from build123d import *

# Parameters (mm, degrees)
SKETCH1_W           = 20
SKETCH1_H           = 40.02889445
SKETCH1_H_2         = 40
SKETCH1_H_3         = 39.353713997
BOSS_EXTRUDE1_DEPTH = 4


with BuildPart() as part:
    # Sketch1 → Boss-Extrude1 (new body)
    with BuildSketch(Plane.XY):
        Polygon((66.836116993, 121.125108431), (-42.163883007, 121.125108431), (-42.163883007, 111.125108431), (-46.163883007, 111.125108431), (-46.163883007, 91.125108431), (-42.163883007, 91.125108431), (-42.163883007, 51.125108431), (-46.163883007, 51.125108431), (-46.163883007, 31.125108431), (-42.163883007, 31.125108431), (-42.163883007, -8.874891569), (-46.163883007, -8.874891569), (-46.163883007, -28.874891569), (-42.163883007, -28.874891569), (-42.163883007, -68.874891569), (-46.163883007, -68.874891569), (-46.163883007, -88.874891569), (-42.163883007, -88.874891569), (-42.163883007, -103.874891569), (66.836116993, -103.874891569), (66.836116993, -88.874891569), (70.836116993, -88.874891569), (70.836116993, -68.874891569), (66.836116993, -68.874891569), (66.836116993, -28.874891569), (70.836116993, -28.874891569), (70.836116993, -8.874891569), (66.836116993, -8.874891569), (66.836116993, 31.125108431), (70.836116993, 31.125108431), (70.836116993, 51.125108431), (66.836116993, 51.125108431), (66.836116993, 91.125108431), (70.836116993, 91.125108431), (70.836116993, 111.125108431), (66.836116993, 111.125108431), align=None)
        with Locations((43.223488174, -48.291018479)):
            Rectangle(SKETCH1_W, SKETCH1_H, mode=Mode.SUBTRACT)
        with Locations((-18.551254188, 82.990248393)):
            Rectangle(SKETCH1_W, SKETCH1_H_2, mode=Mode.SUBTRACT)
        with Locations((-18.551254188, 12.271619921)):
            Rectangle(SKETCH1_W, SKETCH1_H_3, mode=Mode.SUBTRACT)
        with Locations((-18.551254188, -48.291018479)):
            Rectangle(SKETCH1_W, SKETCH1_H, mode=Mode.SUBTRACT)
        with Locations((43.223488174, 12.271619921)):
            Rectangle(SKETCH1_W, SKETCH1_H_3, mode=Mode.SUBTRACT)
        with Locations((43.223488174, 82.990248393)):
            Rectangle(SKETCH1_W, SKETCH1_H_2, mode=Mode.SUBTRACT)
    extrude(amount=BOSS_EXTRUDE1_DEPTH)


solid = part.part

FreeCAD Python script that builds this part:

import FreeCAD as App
import Part
import Sketcher
from FreeCAD import Vector

doc = App.newDocument("Part")
params = doc.addObject("Spreadsheet::Sheet", "Params")
for row, (alias, value) in enumerate([
    ("sketch1_width", "109 mm"),
    ("sketch1_width2", "4 mm"),
    ("sketch1_width3", "20 mm"),
    ("sketch1_height", "10 mm"),
    ("sketch1_height2", "40 mm"),
    ("pad1_length", "4 mm"),
], start=1):
    params.set(f"A{row}", alias)
    params.set(f"B{row}", "=" + value)
    params.setAlias(f"B{row}", alias)

body = doc.addObject("PartDesign::Body", "Body")

sketch1 = body.newObject("Sketcher::SketchObject", "Sketch")
sketch1.AttachmentSupport = (doc.getObject("XY_Plane"), [""])
sketch1.MapMode = "FlatFace"
sketch1.addGeometry(Part.LineSegment(Vector(66.8, 121.1, 0), Vector(-42.2, 121.1, 0)), False)
sketch1.addGeometry(Part.LineSegment(Vector(-42.2, 121.1, 0), Vector(-42.2, 111.1, 0)), False)
sketch1.addGeometry(Part.LineSegment(Vector(-42.2, 111.1, 0), Vector(-46.2, 111.1, 0)), False)
sketch1.addGeometry(Part.LineSegment(Vector(-46.2, 111.1, 0), Vector(-46.2, 91.1, 0)), False)
sketch1.addGeometry(Part.LineSegment(Vector(-46.2, 91.1, 0), Vector(-42.2, 91.1, 0)), False)
sketch1.addGeometry(Part.LineSegment(Vector(-42.2, 91.1, 0), Vector(-42.2, 51.1, 0)), False)
sketch1.addGeometry(Part.LineSegment(Vector(-42.2, 51.1, 0), Vector(-46.2, 51.1, 0)), False)
sketch1.addGeometry(Part.LineSegment(Vector(-46.2, 51.1, 0), Vector(-46.2, 31.1, 0)), False)
sketch1.addGeometry(Part.LineSegment(Vector(-46.2, 31.1, 0), Vector(-42.2, 31.1, 0)), False)
sketch1.addGeometry(Part.LineSegment(Vector(-42.2, 31.1, 0), Vector(-42.2, -8.9, 0)), False)
sketch1.addGeometry(Part.LineSegment(Vector(-42.2, -8.9, 0), Vector(-46.2, -8.9, 0)), False)
sketch1.addGeometry(Part.LineSegment(Vector(-46.2, -8.9, 0), Vector(-46.2, -28.9, 0)), False)
sketch1.addGeometry(Part.LineSegment(Vector(-46.2, -28.9, 0), Vector(-42.2, -28.9, 0)), False)
sketch1.addGeometry(Part.LineSegment(Vector(-42.2, -28.9, 0), Vector(-42.2, -68.9, 0)), False)
sketch1.addGeometry(Part.LineSegment(Vector(-42.2, -68.9, 0), Vector(-46.2, -68.9, 0)), False)
sketch1.addGeometry(Part.LineSegment(Vector(-46.2, -68.9, 0), Vector(-46.2, -88.9, 0)), False)
sketch1.addGeometry(Part.LineSegment(Vector(-46.2, -88.9, 0), Vector(-42.2, -88.9, 0)), False)
sketch1.addGeometry(Part.LineSegment(Vector(-42.2, -88.9, 0), Vector(-42.2, -103.9, 0)), False)
sketch1.addGeometry(Part.LineSegment(Vector(-42.2, -103.9, 0), Vector(66.8, -103.9, 0)), False)
sketch1.addGeometry(Part.LineSegment(Vector(66.8, -103.9, 0), Vector(66.8, -88.9, 0)), False)
sketch1.addGeometry(Part.LineSegment(Vector(66.8, -88.9, 0), Vector(70.8, -88.9, 0)), False)
sketch1.addGeometry(Part.LineSegment(Vector(70.8, -88.9, 0), Vector(70.8, -68.9, 0)), False)
sketch1.addGeometry(Part.LineSegment(Vector(70.8, -68.9, 0), Vector(66.8, -68.9, 0)), False)
sketch1.addGeometry(Part.LineSegment(Vector(66.8, -68.9, 0), Vector(66.8, -28.9, 0)), False)
sketch1.addGeometry(Part.LineSegment(Vector(66.8, -28.9, 0), Vector(70.8, -28.9, 0)), False)
sketch1.addGeometry(Part.LineSegment(Vector(70.8, -28.9, 0), Vector(70.8, -8.9, 0)), False)
sketch1.addGeometry(Part.LineSegment(Vector(70.8, -8.9, 0), Vector(66.8, -8.9, 0)), False)
sketch1.addGeometry(Part.LineSegment(Vector(66.8, -8.9, 0), Vector(66.8, 31.1, 0)), False)
sketch1.addGeometry(Part.LineSegment(Vector(66.8, 31.1, 0), Vector(70.8, 31.1, 0)), False)
sketch1.addGeometry(Part.LineSegment(Vector(70.8, 31.1, 0), Vector(70.8, 51.1, 0)), False)
sketch1.addGeometry(Part.LineSegment(Vector(70.8, 51.1, 0), Vector(66.8, 51.1, 0)), False)
sketch1.addGeometry(Part.LineSegment(Vector(66.8, 51.1, 0), Vector(66.8, 91.1, 0)), False)
sketch1.addGeometry(Part.LineSegment(Vector(66.8, 91.1, 0), Vector(70.8, 91.1, 0)), False)
sketch1.addGeometry(Part.LineSegment(Vector(70.8, 91.1, 0), Vector(70.8, 111.1, 0)), False)
sketch1.addGeometry(Part.LineSegment(Vector(70.8, 111.1, 0), Vector(66.8, 111.1, 0)), False)
sketch1.addGeometry(Part.LineSegment(Vector(66.8, 111.1, 0), Vector(66.8, 121.1, 0)), False)
sketch1.addGeometry(Part.LineSegment(Vector(-8.6, -68.3, 0), Vector(-28.6, -68.3, 0)), False)
sketch1.addGeometry(Part.LineSegment(Vector(-28.6, -68.3, 0), Vector(-28.6, -28.3, 0)), False)
sketch1.addGeometry(Part.LineSegment(Vector(-28.6, -28.3, 0), Vector(-8.6, -28.3, 0)), False)
sketch1.addGeometry(Part.LineSegment(Vector(-8.6, -28.3, 0), Vector(-8.6, -68.3, 0)), False)
sketch1.addGeometry(Part.LineSegment(Vector(-8.6, -7.4, 0), Vector(-28.6, -7.4, 0)), False)
sketch1.addGeometry(Part.LineSegment(Vector(-28.6, -7.4, 0), Vector(-28.6, 31.9, 0)), False)
sketch1.addGeometry(Part.LineSegment(Vector(-28.6, 31.9, 0), Vector(-8.6, 31.9, 0)), False)
sketch1.addGeometry(Part.LineSegment(Vector(-8.6, 31.9, 0), Vector(-8.6, -7.4, 0)), False)
sketch1.addGeometry(Part.LineSegment(Vector(53.2, -68.3, 0), Vector(33.2, -68.3, 0)), False)
sketch1.addGeometry(Part.LineSegment(Vector(33.2, -68.3, 0), Vector(33.2, -28.3, 0)), False)
sketch1.addGeometry(Part.LineSegment(Vector(33.2, -28.3, 0), Vector(53.2, -28.3, 0)), False)
sketch1.addGeometry(Part.LineSegment(Vector(53.2, -28.3, 0), Vector(53.2, -68.3, 0)), False)
sketch1.addGeometry(Part.LineSegment(Vector(53.2, -7.4, 0), Vector(33.2, -7.4, 0)), False)
sketch1.addGeometry(Part.LineSegment(Vector(33.2, -7.4, 0), Vector(33.2, 31.9, 0)), False)
sketch1.addGeometry(Part.LineSegment(Vector(33.2, 31.9, 0), Vector(53.2, 31.9, 0)), False)
sketch1.addGeometry(Part.LineSegment(Vector(53.2, 31.9, 0), Vector(53.2, -7.4, 0)), False)
sketch1.addGeometry(Part.LineSegment(Vector(-8.6, 63, 0), Vector(-28.6, 63, 0)), False)
sketch1.addGeometry(Part.LineSegment(Vector(-28.6, 63, 0), Vector(-28.6, 103, 0)), False)
sketch1.addGeometry(Part.LineSegment(Vector(-28.6, 103, 0), Vector(-8.6, 103, 0)), False)
sketch1.addGeometry(Part.LineSegment(Vector(-8.6, 103, 0), Vector(-8.6, 63, 0)), False)
sketch1.addGeometry(Part.LineSegment(Vector(53.2, 63, 0), Vector(33.2, 63, 0)), False)
sketch1.addGeometry(Part.LineSegment(Vector(33.2, 63, 0), Vector(33.2, 103, 0)), False)
sketch1.addGeometry(Part.LineSegment(Vector(33.2, 103, 0), Vector(53.2, 103, 0)), False)
sketch1.addGeometry(Part.LineSegment(Vector(53.2, 103, 0), Vector(53.2, 63, 0)), False)
sketch1.addConstraint(Sketcher.Constraint("Coincident", 0, 2, 1, 1))
sketch1.addConstraint(Sketcher.Constraint("Coincident", 1, 2, 2, 1))
sketch1.addConstraint(Sketcher.Constraint("Coincident", 2, 2, 3, 1))
sketch1.addConstraint(Sketcher.Constraint("Coincident", 3, 2, 4, 1))
sketch1.addConstraint(Sketcher.Constraint("Coincident", 4, 2, 5, 1))
sketch1.addConstraint(Sketcher.Constraint("Coincident", 5, 2, 6, 1))
sketch1.addConstraint(Sketcher.Constraint("Coincident", 6, 2, 7, 1))
sketch1.addConstraint(Sketcher.Constraint("Coincident", 7, 2, 8, 1))
sketch1.addConstraint(Sketcher.Constraint("Coincident", 8, 2, 9, 1))
sketch1.addConstraint(Sketcher.Constraint("Coincident", 9, 2, 10, 1))
sketch1.addConstraint(Sketcher.Constraint("Coincident", 10, 2, 11, 1))
sketch1.addConstraint(Sketcher.Constraint("Coincident", 11, 2, 12, 1))
sketch1.addConstraint(Sketcher.Constraint("Coincident", 12, 2, 13, 1))
sketch1.addConstraint(Sketcher.Constraint("Coincident", 13, 2, 14, 1))
sketch1.addConstraint(Sketcher.Constraint("Coincident", 14, 2, 15, 1))
sketch1.addConstraint(Sketcher.Constraint("Coincident", 15, 2, 16, 1))
sketch1.addConstraint(Sketcher.Constraint("Coincident", 16, 2, 17, 1))
sketch1.addConstraint(Sketcher.Constraint("Coincident", 17, 2, 18, 1))
sketch1.addConstraint(Sketcher.Constraint("Coincident", 18, 2, 19, 1))
sketch1.addConstraint(Sketcher.Constraint("Coincident", 19, 2, 20, 1))
sketch1.addConstraint(Sketcher.Constraint("Coincident", 20, 2, 21, 1))
sketch1.addConstraint(Sketcher.Constraint("Coincident", 21, 2, 22, 1))
sketch1.addConstraint(Sketcher.Constraint("Coincident", 22, 2, 23, 1))
sketch1.addConstraint(Sketcher.Constraint("Coincident", 23, 2, 24, 1))
sketch1.addConstraint(Sketcher.Constraint("Coincident", 24, 2, 25, 1))
sketch1.addConstraint(Sketcher.Constraint("Coincident", 25, 2, 26, 1))
sketch1.addConstraint(Sketcher.Constraint("Coincident", 26, 2, 27, 1))
sketch1.addConstraint(Sketcher.Constraint("Coincident", 27, 2, 28, 1))
sketch1.addConstraint(Sketcher.Constraint("Coincident", 28, 2, 29, 1))
sketch1.addConstraint(Sketcher.Constraint("Coincident", 29, 2, 30, 1))
sketch1.addConstraint(Sketcher.Constraint("Coincident", 30, 2, 31, 1))
sketch1.addConstraint(Sketcher.Constraint("Coincident", 31, 2, 32, 1))
sketch1.addConstraint(Sketcher.Constraint("Coincident", 32, 2, 33, 1))
sketch1.addConstraint(Sketcher.Constraint("Coincident", 33, 2, 34, 1))
sketch1.addConstraint(Sketcher.Constraint("Coincident", 34, 2, 35, 1))
sketch1.addConstraint(Sketcher.Constraint("Coincident", 35, 2, 0, 1))
sketch1.addConstraint(Sketcher.Constraint("Coincident", 36, 2, 37, 1))
sketch1.addConstraint(Sketcher.Constraint("Coincident", 37, 2, 38, 1))
sketch1.addConstraint(Sketcher.Constraint("Coincident", 38, 2, 39, 1))
sketch1.addConstraint(Sketcher.Constraint("Coincident", 39, 2, 36, 1))
sketch1.addConstraint(Sketcher.Constraint("Coincident", 40, 2, 41, 1))
sketch1.addConstraint(Sketcher.Constraint("Coincident", 41, 2, 42, 1))
sketch1.addConstraint(Sketcher.Constraint("Coincident", 42, 2, 43, 1))
sketch1.addConstraint(Sketcher.Constraint("Coincident", 43, 2, 40, 1))
sketch1.addConstraint(Sketcher.Constraint("Coincident", 44, 2, 45, 1))
sketch1.addConstraint(Sketcher.Constraint("Coincident", 45, 2, 46, 1))
sketch1.addConstraint(Sketcher.Constraint("Coincident", 46, 2, 47, 1))
sketch1.addConstraint(Sketcher.Constraint("Coincident", 47, 2, 44, 1))
sketch1.addConstraint(Sketcher.Constraint("Coincident", 48, 2, 49, 1))
sketch1.addConstraint(Sketcher.Constraint("Coincident", 49, 2, 50, 1))
sketch1.addConstraint(Sketcher.Constraint("Coincident", 50, 2, 51, 1))
sketch1.addConstraint(Sketcher.Constraint("Coincident", 51, 2, 48, 1))
sketch1.addConstraint(Sketcher.Constraint("Coincident", 52, 2, 53, 1))
sketch1.addConstraint(Sketcher.Constraint("Coincident", 53, 2, 54, 1))
sketch1.addConstraint(Sketcher.Constraint("Coincident", 54, 2, 55, 1))
sketch1.addConstraint(Sketcher.Constraint("Coincident", 55, 2, 52, 1))
sketch1.addConstraint(Sketcher.Constraint("Coincident", 56, 2, 57, 1))
sketch1.addConstraint(Sketcher.Constraint("Coincident", 57, 2, 58, 1))
sketch1.addConstraint(Sketcher.Constraint("Coincident", 58, 2, 59, 1))
sketch1.addConstraint(Sketcher.Constraint("Coincident", 59, 2, 56, 1))
sketch1.addConstraint(Sketcher.Constraint("Horizontal", 0))
sketch1.addConstraint(Sketcher.Constraint("Vertical", 1))
sketch1.addConstraint(Sketcher.Constraint("Horizontal", 2))
sketch1.addConstraint(Sketcher.Constraint("Vertical", 3))
sketch1.addConstraint(Sketcher.Constraint("Horizontal", 4))
sketch1.addConstraint(Sketcher.Constraint("Vertical", 5))
sketch1.addConstraint(Sketcher.Constraint("Horizontal", 6))
sketch1.addConstraint(Sketcher.Constraint("Vertical", 7))
sketch1.addConstraint(Sketcher.Constraint("Horizontal", 8))
sketch1.addConstraint(Sketcher.Constraint("Vertical", 9))
sketch1.addConstraint(Sketcher.Constraint("Horizontal", 10))
sketch1.addConstraint(Sketcher.Constraint("Vertical", 11))
sketch1.addConstraint(Sketcher.Constraint("Horizontal", 12))
sketch1.addConstraint(Sketcher.Constraint("Vertical", 13))
sketch1.addConstraint(Sketcher.Constraint("Horizontal", 14))
sketch1.addConstraint(Sketcher.Constraint("Vertical", 15))
sketch1.addConstraint(Sketcher.Constraint("Horizontal", 16))
sketch1.addConstraint(Sketcher.Constraint("Vertical", 17))
sketch1.addConstraint(Sketcher.Constraint("Horizontal", 18))
sketch1.addConstraint(Sketcher.Constraint("Vertical", 19))
sketch1.addConstraint(Sketcher.Constraint("Horizontal", 20))
sketch1.addConstraint(Sketcher.Constraint("Vertical", 21))
sketch1.addConstraint(Sketcher.Constraint("Horizontal", 22))
sketch1.addConstraint(Sketcher.Constraint("Vertical", 23))
sketch1.addConstraint(Sketcher.Constraint("Horizontal", 24))
sketch1.addConstraint(Sketcher.Constraint("Vertical", 25))
sketch1.addConstraint(Sketcher.Constraint("Horizontal", 26))
sketch1.addConstraint(Sketcher.Constraint("Vertical", 27))
sketch1.addConstraint(Sketcher.Constraint("Horizontal", 28))
sketch1.addConstraint(Sketcher.Constraint("Vertical", 29))
sketch1.addConstraint(Sketcher.Constraint("Horizontal", 30))
sketch1.addConstraint(Sketcher.Constraint("Vertical", 31))
sketch1.addConstraint(Sketcher.Constraint("Horizontal", 32))
sketch1.addConstraint(Sketcher.Constraint("Vertical", 33))
sketch1.addConstraint(Sketcher.Constraint("Horizontal", 34))
sketch1.addConstraint(Sketcher.Constraint("Vertical", 35))
sketch1.addConstraint(Sketcher.Constraint("Horizontal", 36))
sketch1.addConstraint(Sketcher.Constraint("Vertical", 37))
sketch1.addConstraint(Sketcher.Constraint("Horizontal", 38))
sketch1.addConstraint(Sketcher.Constraint("Vertical", 39))
sketch1.addConstraint(Sketcher.Constraint("Horizontal", 40))
sketch1.addConstraint(Sketcher.Constraint("Vertical", 41))
sketch1.addConstraint(Sketcher.Constraint("Horizontal", 42))
sketch1.addConstraint(Sketcher.Constraint("Vertical", 43))
sketch1.addConstraint(Sketcher.Constraint("Horizontal", 44))
sketch1.addConstraint(Sketcher.Constraint("Vertical", 45))
sketch1.addConstraint(Sketcher.Constraint("Horizontal", 46))
sketch1.addConstraint(Sketcher.Constraint("Vertical", 47))
sketch1.addConstraint(Sketcher.Constraint("Horizontal", 48))
sketch1.addConstraint(Sketcher.Constraint("Vertical", 49))
sketch1.addConstraint(Sketcher.Constraint("Horizontal", 50))
sketch1.addConstraint(Sketcher.Constraint("Vertical", 51))
sketch1.addConstraint(Sketcher.Constraint("Horizontal", 52))
sketch1.addConstraint(Sketcher.Constraint("Vertical", 53))
sketch1.addConstraint(Sketcher.Constraint("Horizontal", 54))
sketch1.addConstraint(Sketcher.Constraint("Vertical", 55))
sketch1.addConstraint(Sketcher.Constraint("Horizontal", 56))
sketch1.addConstraint(Sketcher.Constraint("Vertical", 57))
sketch1.addConstraint(Sketcher.Constraint("Horizontal", 58))
sketch1.addConstraint(Sketcher.Constraint("Vertical", 59))
sketch1.addConstraint(Sketcher.Constraint("Horizontal", 16, 2, 19, 2))
sketch1.addConstraint(Sketcher.Constraint("Horizontal", 14, 2, 21, 2))
sketch1.addConstraint(Sketcher.Constraint("Horizontal", 12, 2, 23, 2))
sketch1.addConstraint(Sketcher.Constraint("Horizontal", 10, 2, 25, 2))
sketch1.addConstraint(Sketcher.Constraint("Horizontal", 8, 2, 27, 2))
sketch1.addConstraint(Sketcher.Constraint("Horizontal", 6, 2, 29, 2))
sketch1.addConstraint(Sketcher.Constraint("Horizontal", 4, 2, 31, 2))
sketch1.addConstraint(Sketcher.Constraint("Horizontal", 2, 2, 33, 2))
sketch1.addConstraint(Sketcher.Constraint("Horizontal", 39, 2, 44, 2))
sketch1.addConstraint(Sketcher.Constraint("Horizontal", 38, 2, 45, 2))
sketch1.addConstraint(Sketcher.Constraint("Horizontal", 43, 2, 48, 2))
sketch1.addConstraint(Sketcher.Constraint("Horizontal", 42, 2, 49, 2))
sketch1.addConstraint(Sketcher.Constraint("Horizontal", 55, 2, 56, 2))
sketch1.addConstraint(Sketcher.Constraint("Horizontal", 54, 2, 57, 2))
sketch1.addConstraint(Sketcher.Constraint("Vertical", 1, 2, 4, 2))
sketch1.addConstraint(Sketcher.Constraint("Vertical", 3, 2, 6, 2))
sketch1.addConstraint(Sketcher.Constraint("Vertical", 5, 2, 8, 2))
sketch1.addConstraint(Sketcher.Constraint("Vertical", 7, 2, 10, 2))
sketch1.addConstraint(Sketcher.Constraint("Vertical", 9, 2, 12, 2))
sketch1.addConstraint(Sketcher.Constraint("Vertical", 11, 2, 14, 2))
sketch1.addConstraint(Sketcher.Constraint("Vertical", 13, 2, 16, 2))
sketch1.addConstraint(Sketcher.Constraint("Vertical", 19, 2, 22, 2))
sketch1.addConstraint(Sketcher.Constraint("Vertical", 21, 2, 24, 2))
sketch1.addConstraint(Sketcher.Constraint("Vertical", 23, 2, 26, 2))
sketch1.addConstraint(Sketcher.Constraint("Vertical", 25, 2, 28, 2))
sketch1.addConstraint(Sketcher.Constraint("Vertical", 27, 2, 30, 2))
sketch1.addConstraint(Sketcher.Constraint("Vertical", 29, 2, 32, 2))
sketch1.addConstraint(Sketcher.Constraint("Vertical", 31, 2, 34, 2))
sketch1.addConstraint(Sketcher.Constraint("Vertical", 37, 2, 40, 2))
sketch1.addConstraint(Sketcher.Constraint("Vertical", 39, 2, 42, 2))
sketch1.addConstraint(Sketcher.Constraint("Vertical", 45, 2, 48, 2))
sketch1.addConstraint(Sketcher.Constraint("Vertical", 47, 2, 50, 2))
sketch1.addConstraint(Sketcher.Constraint("Vertical", 41, 2, 52, 2))
sketch1.addConstraint(Sketcher.Constraint("Vertical", 43, 2, 54, 2))
sketch1.addConstraint(Sketcher.Constraint("Vertical", 49, 2, 56, 2))
sketch1.addConstraint(Sketcher.Constraint("Vertical", 51, 2, 58, 2))
sketch1.addConstraint(Sketcher.Constraint("Equal", 16, 20))
sketch1.addConstraint(Sketcher.Constraint("Equal", 42, 44))
sketch1.addConstraint(Sketcher.Constraint("Equal", 58, 3))
sketch1.addConstraint(Sketcher.Constraint("Equal", 3, 7))
sketch1.addConstraint(Sketcher.Constraint("Equal", 5, 9))
sketch1.addConstraint(Sketcher.Constraint("Equal", 7, 11))
sketch1.addConstraint(Sketcher.Constraint("Equal", 9, 13))
sketch1.addConstraint(Sketcher.Constraint("Equal", 11, 15))
sketch1.addConstraint(Sketcher.Constraint("Equal", 31, 53))
sketch1.addConstraint(Sketcher.Constraint("DistanceX", 0, 2, 0, 1, 109.0))
sketch1.addConstraint(Sketcher.Constraint("DistanceX", 2, 2, 2, 1, 4.0))
sketch1.addConstraint(Sketcher.Constraint("DistanceX", 36, 2, 36, 1, 20.0))
sketch1.addConstraint(Sketcher.Constraint("DistanceY", 1, 2, 1, 1, 10.0))
sketch1.addConstraint(Sketcher.Constraint("DistanceY", 5, 2, 5, 1, 40.0))
sketch1.addConstraint(Sketcher.Constraint("DistanceY", 17, 2, 17, 1, 15.0))
sketch1.addConstraint(Sketcher.Constraint("DistanceY", 37, 1, 37, 2, 40.028894))
sketch1.addConstraint(Sketcher.Constraint("DistanceY", 41, 1, 41, 2, 39.353714))
sketch1.addConstraint(Sketcher.Constraint("DistanceY", -1, 1, 0, 2, 121.125108))
sketch1.addConstraint(Sketcher.Constraint("DistanceY", 37, 2, -1, 1, 28.276571))
sketch1.addConstraint(Sketcher.Constraint("DistanceX", -1, 1, 44, 2, 33.223488))
sketch1.addConstraint(Sketcher.Constraint("DistanceY", -1, 1, 52, 2, 62.990248))
sketch1.addConstraint(Sketcher.Constraint("DistanceX", 13, 2, 36, 2, 13.612629))
sketch1.addConstraint(Sketcher.Constraint("DistanceY", 8, 2, 41, 2, 0.823368))
sketch1.addConstraint(Sketcher.Constraint("DistanceX", 44, 2, 22, 2, 33.612629))
sketch1.setExpression("Constraints[165]", "Params.sketch1_width")
sketch1.setExpression("Constraints[166]", "Params.sketch1_width2")
sketch1.setExpression("Constraints[167]", "Params.sketch1_width3")
sketch1.setExpression("Constraints[168]", "Params.sketch1_height")
sketch1.setExpression("Constraints[169]", "Params.sketch1_height2")
pad1 = body.newObject("PartDesign::Pad", "Pad")
pad1.Profile = sketch1
pad1.setExpression("Length", "Params.pad1_length")

doc.recompute()
